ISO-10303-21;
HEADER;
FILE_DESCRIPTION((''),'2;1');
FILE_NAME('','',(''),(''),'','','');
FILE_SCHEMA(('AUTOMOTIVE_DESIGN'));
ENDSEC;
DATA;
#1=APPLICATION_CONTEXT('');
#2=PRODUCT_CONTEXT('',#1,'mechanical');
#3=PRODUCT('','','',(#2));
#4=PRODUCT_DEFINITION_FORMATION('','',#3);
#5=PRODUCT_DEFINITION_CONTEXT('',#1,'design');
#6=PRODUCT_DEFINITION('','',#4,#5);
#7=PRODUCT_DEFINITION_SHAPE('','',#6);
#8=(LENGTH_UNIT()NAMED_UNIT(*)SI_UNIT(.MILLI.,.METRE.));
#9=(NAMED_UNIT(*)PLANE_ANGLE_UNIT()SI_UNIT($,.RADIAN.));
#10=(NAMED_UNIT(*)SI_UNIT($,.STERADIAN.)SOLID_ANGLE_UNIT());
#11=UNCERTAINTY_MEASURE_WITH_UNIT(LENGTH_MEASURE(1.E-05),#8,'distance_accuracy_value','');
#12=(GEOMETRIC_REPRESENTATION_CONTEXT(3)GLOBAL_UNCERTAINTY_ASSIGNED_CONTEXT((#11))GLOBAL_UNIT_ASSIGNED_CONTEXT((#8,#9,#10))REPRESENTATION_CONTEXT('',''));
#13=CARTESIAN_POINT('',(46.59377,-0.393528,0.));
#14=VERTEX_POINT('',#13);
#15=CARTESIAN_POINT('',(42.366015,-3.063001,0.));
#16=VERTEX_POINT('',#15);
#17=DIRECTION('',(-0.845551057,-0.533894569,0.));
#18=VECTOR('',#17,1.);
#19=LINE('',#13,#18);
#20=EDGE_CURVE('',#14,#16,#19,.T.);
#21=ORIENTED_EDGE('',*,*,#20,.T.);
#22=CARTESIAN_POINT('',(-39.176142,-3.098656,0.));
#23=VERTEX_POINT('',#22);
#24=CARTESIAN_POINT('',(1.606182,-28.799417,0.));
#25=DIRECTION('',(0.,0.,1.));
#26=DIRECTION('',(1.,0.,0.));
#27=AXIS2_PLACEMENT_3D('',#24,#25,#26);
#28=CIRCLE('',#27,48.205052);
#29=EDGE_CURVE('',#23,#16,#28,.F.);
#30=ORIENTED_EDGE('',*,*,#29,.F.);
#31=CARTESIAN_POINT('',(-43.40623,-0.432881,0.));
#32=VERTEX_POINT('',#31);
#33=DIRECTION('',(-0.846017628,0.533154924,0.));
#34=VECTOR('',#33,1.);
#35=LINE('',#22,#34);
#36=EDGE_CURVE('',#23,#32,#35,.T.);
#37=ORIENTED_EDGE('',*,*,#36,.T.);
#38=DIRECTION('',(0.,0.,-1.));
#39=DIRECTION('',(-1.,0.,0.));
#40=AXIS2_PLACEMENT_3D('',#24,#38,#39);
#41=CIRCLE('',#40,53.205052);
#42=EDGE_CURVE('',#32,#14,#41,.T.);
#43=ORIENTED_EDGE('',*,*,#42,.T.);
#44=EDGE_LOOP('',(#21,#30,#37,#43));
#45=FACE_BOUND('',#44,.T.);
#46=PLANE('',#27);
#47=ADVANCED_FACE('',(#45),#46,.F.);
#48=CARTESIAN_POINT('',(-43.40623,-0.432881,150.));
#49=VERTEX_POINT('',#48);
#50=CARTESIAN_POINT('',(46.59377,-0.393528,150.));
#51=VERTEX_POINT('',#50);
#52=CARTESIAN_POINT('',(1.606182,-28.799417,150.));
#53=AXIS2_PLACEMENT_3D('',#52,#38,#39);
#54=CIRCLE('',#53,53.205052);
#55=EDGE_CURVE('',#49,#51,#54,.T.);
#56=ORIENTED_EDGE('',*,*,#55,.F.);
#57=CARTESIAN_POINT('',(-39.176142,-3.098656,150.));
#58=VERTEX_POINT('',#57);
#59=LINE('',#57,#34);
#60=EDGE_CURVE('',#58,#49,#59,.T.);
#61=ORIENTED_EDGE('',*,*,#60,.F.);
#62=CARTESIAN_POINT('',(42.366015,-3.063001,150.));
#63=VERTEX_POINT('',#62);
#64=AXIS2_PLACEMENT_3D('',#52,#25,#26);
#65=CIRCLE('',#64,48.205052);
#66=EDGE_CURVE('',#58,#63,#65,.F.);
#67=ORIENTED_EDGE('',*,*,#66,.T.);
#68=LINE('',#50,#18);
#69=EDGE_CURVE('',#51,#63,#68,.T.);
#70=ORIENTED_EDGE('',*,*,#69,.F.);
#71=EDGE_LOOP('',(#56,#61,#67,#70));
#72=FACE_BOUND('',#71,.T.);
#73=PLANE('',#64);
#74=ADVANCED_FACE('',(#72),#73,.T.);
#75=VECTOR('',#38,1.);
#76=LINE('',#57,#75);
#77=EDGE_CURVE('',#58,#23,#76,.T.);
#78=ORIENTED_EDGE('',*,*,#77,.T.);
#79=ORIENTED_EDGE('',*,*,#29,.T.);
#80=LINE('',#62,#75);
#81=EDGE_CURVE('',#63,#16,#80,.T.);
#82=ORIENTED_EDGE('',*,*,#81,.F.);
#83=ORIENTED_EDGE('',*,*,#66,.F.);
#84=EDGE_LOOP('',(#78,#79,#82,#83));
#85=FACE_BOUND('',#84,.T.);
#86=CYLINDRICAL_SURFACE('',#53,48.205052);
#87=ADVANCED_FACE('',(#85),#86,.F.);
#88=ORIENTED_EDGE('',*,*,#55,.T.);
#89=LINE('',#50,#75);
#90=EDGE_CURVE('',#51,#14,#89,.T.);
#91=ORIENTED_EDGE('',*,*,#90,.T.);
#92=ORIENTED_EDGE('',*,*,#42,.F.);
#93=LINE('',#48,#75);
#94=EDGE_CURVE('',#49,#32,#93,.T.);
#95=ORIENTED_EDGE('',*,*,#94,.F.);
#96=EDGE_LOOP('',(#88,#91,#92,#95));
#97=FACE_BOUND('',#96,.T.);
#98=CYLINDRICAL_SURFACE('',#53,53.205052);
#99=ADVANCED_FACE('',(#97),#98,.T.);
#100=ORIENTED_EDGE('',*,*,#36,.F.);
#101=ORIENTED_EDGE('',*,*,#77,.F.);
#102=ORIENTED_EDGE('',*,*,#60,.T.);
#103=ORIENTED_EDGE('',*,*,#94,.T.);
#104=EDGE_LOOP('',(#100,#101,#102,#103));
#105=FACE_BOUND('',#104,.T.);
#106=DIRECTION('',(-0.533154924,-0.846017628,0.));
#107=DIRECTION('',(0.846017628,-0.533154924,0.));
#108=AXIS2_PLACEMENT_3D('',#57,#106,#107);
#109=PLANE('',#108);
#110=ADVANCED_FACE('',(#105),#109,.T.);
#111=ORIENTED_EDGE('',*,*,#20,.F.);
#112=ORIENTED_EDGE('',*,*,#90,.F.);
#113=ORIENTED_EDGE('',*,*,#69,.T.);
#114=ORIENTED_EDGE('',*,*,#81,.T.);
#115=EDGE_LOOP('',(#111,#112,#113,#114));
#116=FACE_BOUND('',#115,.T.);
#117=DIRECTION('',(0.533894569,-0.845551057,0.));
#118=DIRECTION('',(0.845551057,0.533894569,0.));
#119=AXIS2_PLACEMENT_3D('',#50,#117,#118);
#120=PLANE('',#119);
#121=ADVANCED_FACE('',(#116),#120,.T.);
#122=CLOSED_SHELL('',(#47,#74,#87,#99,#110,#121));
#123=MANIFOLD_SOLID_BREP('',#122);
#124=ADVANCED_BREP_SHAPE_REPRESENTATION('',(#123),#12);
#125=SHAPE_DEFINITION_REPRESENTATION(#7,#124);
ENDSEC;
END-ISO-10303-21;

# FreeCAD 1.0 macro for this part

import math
import FreeCAD as App
import Part
import Sketcher

doc = App.newDocument("Part")
body = doc.addObject("PartDesign::Body", "Body")

sketch1 = body.newObject("Sketcher::SketchObject", "Sketch")
sketch1.AttachmentSupport = (doc.getObject("XY_Plane"), [""])
sketch1.MapMode = "FlatFace"
sketch1.addGeometry(Part.ArcOfCircle(Part.Circle(App.Vector(1.606182, -28.799417, 0), App.Vector(0, 0, 1), 53.205052), math.radians(32.268975), math.radians(147.781131)), False)
sketch1.addGeometry(Part.LineSegment(App.Vector(-43.40623, -0.432881, 0), App.Vector(-39.176142, -3.098656, 0)), False)
sketch1.addGeometry(Part.ArcOfCircle(Part.Circle(App.Vector(1.606182, -28.799417, 0), App.Vector(0, 0, 1), 48.205052), math.radians(32.268975), math.radians(147.781131)), False)
sketch1.addGeometry(Part.LineSegment(App.Vector(42.366015, -3.063001, 0), App.Vector(46.59377, -0.393528, 0)), False)
sketch1.addConstraint(Sketcher.Constraint("Coincident", 0, 2, 1, 1))
sketch1.addConstraint(Sketcher.Constraint("Coincident", 1, 2, 2, 2))
sketch1.addConstraint(Sketcher.Constraint("Coincident", 2, 1, 3, 1))
sketch1.addConstraint(Sketcher.Constraint("Coincident", 3, 2, 0, 1))
sketch1.addConstraint(Sketcher.Constraint("Coincident", 2, 3, 0, 3))
sketch1.addConstraint(Sketcher.Constraint("Distance", 1, 5.0))
sketch1.addConstraint(Sketcher.Constraint("DistanceX", 0, 2, 3, 2, 90.0))
sketch1.addConstraint(Sketcher.Constraint("DistanceY", 2, 1, -1, 1, 3.063001))
sketch1.addConstraint(Sketcher.Constraint("Radius", 0, 53.205052))
sketch1.addConstraint(Sketcher.Constraint("DistanceX", 0, 2, -1, 1, 43.40623))
sketch1.addConstraint(Sketcher.Constraint("DistanceY", 0, 2, -1, 1, 0.432881))
sketch1.addConstraint(Sketcher.Constraint("DistanceX", 1, 2, -1, 1, 39.176142))
sketch1.addConstraint(Sketcher.Constraint("DistanceY", 3, 2, -1, 1, 0.393528))
pad1 = body.newObject("PartDesign::Pad", "Pad")
pad1.Profile = sketch1
pad1.Length = 150

doc.recompute()
